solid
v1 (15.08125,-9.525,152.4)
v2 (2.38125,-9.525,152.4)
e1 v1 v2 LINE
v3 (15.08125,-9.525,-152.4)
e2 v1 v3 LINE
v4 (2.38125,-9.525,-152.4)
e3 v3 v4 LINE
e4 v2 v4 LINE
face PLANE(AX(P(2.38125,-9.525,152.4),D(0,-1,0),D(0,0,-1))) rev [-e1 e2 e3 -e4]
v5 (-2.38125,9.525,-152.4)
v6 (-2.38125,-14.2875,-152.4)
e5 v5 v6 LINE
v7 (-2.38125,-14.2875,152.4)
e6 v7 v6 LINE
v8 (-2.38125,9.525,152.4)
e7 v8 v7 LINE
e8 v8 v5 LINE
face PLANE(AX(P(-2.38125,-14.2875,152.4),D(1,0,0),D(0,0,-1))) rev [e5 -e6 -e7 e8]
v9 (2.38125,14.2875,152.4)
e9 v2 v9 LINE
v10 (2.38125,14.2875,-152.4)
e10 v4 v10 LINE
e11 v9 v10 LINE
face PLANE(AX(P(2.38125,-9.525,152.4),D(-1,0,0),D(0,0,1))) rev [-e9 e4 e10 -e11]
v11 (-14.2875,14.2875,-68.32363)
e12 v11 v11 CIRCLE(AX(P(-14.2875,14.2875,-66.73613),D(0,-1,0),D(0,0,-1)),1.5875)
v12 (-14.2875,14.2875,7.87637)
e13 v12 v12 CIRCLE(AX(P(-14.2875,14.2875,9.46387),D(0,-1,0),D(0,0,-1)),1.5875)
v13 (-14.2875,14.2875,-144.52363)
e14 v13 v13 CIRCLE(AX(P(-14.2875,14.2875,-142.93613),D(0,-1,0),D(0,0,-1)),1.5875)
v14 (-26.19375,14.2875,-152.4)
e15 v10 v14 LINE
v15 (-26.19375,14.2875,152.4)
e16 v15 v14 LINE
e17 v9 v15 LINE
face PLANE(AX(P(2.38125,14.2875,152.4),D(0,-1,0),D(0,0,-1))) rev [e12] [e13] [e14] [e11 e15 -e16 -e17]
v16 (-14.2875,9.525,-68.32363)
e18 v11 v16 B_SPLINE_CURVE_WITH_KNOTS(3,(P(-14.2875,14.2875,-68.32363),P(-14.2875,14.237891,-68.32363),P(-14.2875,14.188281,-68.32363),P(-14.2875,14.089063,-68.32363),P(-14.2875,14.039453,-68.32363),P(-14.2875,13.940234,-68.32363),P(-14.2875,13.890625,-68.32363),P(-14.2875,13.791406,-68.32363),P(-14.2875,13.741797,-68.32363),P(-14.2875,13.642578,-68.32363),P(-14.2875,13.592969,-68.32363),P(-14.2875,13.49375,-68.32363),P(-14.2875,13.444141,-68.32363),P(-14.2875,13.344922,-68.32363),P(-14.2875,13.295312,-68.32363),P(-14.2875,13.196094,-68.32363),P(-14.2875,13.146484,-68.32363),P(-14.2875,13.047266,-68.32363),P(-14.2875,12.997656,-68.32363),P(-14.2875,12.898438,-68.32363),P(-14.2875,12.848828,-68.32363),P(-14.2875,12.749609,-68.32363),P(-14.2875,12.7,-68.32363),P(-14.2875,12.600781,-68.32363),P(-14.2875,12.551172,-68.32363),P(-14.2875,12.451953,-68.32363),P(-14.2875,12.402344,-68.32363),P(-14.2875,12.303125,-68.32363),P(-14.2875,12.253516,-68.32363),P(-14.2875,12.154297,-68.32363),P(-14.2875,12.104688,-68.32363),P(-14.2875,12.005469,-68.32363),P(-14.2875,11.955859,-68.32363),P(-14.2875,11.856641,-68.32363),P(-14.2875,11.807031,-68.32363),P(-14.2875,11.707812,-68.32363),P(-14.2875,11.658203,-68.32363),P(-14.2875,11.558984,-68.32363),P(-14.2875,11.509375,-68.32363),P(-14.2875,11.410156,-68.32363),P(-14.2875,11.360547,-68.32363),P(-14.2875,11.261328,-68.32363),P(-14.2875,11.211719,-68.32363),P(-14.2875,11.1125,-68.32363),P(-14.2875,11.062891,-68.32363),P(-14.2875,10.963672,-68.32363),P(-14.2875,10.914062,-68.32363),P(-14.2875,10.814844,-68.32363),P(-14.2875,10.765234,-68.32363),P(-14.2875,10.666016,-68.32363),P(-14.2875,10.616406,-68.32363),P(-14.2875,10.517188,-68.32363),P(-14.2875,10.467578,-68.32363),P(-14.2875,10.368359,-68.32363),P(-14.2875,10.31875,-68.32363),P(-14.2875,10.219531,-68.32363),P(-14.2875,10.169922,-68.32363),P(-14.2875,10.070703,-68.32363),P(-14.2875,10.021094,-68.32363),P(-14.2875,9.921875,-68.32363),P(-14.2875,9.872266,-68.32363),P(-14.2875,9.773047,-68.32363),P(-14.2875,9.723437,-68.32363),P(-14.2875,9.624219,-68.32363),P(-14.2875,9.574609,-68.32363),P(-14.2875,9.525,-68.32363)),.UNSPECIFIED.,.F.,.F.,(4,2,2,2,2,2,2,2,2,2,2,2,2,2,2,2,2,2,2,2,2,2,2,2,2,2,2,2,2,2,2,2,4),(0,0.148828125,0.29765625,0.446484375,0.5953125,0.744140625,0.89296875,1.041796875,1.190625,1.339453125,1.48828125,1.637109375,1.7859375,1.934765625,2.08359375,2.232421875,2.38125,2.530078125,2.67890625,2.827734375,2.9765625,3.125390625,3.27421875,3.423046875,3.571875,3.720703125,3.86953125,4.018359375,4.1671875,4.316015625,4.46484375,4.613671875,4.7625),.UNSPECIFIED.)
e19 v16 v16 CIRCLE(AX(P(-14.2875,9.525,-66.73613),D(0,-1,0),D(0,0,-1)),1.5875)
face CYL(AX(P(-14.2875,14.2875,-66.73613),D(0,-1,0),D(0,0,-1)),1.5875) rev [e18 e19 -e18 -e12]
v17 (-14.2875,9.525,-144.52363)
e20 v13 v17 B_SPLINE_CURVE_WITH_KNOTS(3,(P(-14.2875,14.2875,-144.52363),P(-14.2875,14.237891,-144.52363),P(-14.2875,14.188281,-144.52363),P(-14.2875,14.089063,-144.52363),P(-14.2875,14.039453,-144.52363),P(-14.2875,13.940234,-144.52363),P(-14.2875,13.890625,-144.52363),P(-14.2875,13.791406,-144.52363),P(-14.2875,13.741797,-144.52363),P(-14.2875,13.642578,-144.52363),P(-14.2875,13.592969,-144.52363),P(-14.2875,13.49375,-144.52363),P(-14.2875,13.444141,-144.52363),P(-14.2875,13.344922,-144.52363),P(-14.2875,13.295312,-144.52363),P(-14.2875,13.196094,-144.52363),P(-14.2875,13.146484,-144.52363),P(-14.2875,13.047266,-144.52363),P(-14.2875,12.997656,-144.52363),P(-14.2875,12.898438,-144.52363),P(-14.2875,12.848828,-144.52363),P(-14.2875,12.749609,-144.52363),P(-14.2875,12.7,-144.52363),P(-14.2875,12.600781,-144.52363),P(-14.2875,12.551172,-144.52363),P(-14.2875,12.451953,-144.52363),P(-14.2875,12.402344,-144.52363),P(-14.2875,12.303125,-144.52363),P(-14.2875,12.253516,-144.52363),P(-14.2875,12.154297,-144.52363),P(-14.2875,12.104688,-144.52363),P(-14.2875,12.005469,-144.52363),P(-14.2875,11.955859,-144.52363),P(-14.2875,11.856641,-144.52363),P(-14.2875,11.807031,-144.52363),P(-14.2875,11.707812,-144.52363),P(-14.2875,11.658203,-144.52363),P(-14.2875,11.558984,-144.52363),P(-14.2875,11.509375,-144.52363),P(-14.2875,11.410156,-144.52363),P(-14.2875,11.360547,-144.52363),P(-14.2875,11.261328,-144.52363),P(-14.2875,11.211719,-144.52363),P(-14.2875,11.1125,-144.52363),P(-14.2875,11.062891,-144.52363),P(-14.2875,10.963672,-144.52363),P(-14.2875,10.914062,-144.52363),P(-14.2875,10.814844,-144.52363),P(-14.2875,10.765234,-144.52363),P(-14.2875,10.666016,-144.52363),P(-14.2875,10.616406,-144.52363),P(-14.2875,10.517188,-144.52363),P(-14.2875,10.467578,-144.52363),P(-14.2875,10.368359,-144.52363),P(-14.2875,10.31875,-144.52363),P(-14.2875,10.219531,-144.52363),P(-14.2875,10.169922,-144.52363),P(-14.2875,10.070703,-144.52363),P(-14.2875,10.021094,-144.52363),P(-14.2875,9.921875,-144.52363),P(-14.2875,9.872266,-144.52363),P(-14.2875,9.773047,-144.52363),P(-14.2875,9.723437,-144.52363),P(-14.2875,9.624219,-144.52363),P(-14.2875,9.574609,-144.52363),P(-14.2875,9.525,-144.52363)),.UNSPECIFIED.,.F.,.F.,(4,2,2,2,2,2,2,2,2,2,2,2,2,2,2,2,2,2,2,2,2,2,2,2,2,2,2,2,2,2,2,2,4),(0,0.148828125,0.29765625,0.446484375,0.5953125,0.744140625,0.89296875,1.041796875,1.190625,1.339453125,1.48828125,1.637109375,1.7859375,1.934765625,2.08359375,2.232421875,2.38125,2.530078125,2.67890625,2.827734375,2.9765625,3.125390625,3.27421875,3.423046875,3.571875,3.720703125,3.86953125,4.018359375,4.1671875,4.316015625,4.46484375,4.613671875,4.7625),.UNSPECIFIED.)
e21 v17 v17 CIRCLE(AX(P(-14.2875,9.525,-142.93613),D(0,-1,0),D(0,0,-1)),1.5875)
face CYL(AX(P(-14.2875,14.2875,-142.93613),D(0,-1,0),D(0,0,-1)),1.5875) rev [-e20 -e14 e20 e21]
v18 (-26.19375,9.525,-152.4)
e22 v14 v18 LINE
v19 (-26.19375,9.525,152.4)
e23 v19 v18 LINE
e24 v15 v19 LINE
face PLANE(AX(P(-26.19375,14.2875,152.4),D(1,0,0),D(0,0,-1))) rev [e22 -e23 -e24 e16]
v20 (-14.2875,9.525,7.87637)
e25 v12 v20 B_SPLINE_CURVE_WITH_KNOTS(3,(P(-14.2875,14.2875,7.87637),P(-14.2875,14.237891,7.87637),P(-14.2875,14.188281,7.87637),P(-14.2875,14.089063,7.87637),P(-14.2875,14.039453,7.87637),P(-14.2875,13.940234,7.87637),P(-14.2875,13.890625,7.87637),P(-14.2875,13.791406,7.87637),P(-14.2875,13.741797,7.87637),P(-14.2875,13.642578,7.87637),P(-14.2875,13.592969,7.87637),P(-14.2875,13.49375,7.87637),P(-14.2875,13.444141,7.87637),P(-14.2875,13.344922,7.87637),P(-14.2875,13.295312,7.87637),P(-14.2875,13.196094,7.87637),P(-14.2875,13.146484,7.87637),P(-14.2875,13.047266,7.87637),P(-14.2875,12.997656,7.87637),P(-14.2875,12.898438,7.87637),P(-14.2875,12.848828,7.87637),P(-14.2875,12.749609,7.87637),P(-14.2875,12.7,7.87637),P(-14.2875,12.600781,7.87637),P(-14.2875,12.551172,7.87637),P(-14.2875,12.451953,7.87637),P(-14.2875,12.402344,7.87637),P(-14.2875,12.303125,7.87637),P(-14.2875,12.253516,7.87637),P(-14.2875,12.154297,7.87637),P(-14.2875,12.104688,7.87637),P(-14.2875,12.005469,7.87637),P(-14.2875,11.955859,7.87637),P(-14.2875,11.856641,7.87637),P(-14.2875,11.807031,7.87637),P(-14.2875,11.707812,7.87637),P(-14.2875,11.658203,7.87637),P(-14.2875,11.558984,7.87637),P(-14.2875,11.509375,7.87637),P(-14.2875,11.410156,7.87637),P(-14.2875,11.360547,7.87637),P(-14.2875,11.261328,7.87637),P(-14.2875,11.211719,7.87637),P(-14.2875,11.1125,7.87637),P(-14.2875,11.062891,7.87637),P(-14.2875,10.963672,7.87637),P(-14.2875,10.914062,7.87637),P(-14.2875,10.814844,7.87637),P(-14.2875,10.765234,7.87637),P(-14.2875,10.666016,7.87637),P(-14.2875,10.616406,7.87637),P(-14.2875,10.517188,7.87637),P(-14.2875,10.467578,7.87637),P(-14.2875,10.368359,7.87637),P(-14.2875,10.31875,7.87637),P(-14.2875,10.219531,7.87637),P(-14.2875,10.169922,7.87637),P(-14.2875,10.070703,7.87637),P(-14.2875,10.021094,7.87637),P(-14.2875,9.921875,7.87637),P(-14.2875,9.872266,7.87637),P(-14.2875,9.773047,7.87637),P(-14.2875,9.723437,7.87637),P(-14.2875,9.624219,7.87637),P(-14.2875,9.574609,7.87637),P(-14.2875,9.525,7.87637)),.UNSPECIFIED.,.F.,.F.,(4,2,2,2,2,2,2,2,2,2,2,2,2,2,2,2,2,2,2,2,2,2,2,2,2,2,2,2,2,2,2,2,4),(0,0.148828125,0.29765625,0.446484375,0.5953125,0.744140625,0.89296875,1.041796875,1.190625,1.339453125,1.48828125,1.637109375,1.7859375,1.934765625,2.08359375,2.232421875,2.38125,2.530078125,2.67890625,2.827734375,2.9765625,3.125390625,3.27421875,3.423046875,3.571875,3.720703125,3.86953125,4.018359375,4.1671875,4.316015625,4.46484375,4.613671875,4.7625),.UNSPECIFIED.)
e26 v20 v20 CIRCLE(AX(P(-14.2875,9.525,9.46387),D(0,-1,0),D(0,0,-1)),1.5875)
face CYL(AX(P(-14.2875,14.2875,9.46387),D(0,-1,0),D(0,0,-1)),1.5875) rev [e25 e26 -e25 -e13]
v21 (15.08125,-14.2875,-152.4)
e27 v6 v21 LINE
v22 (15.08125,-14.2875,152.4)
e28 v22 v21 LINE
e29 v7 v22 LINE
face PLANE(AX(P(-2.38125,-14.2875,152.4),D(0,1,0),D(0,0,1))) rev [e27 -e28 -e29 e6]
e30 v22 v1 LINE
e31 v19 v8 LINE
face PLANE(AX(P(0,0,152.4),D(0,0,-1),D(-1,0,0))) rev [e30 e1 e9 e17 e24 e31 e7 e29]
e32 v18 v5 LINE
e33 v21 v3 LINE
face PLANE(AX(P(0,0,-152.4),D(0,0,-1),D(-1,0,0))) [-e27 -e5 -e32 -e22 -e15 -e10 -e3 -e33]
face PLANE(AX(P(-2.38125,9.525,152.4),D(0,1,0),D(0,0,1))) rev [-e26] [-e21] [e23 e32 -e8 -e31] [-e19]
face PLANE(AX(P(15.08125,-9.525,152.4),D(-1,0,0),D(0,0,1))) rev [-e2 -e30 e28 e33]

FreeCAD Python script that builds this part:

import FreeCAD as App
import Part
import Sketcher

V = App.Vector
Q = App.Units.Quantity


def add_polygon(sketch, points):
    """Adds a closed chain of lines whose ends are joined by coincident constraints."""
    first, n = sketch.GeometryCount, len(points)
    for a, b in zip(points, points[1:] + points[:1]):
        sketch.addGeometry(Part.LineSegment(App.Vector(*a, 0), App.Vector(*b, 0)), False)
    for i in range(n):
        sketch.addConstraint(Sketcher.Constraint("Coincident", first + i, 2, first + (i + 1) % n, 1))

doc = App.newDocument("Part")
body = doc.addObject("PartDesign::Body", "Body")

sketch1 = body.newObject("Sketcher::SketchObject", "Sketch")
sketch1.AttachmentSupport = (doc.getObject("XY_Plane"), [""])
sketch1.MapMode = "FlatFace"
add_polygon(sketch1, [(15.08125, -14.2875), (15.08125, -9.525), (2.38125, -9.525), (2.38125, 14.2875), (-26.19375, 14.2875), (-26.19375, 9.525), (-2.38125, 9.525), (-2.38125, -14.2875)])
sketch1.addConstraint(Sketcher.Constraint("Vertical", 0))
sketch1.addConstraint(Sketcher.Constraint("Horizontal", 1))
sketch1.addConstraint(Sketcher.Constraint("Vertical", 2))
sketch1.addConstraint(Sketcher.Constraint("Horizontal", 3))
sketch1.addConstraint(Sketcher.Constraint("Vertical", 4))
sketch1.addConstraint(Sketcher.Constraint("Horizontal", 5))
sketch1.addConstraint(Sketcher.Constraint("Vertical", 6))
sketch1.addConstraint(Sketcher.Constraint("Horizontal", 7))
sketch1.addConstraint(Sketcher.Constraint("Symmetric", 1, 2, 5, 2, -1, 1))
sketch1.addConstraint(Sketcher.Constraint("Equal", 5, 2))
sketch1.addConstraint(Sketcher.Constraint("Equal", 0, 4))
sketch1.addConstraint(Sketcher.Constraint("DistanceX", 1, 2, 1, 1, Q("0.5 in")))
sketch1.addConstraint(Sketcher.Constraint("DistanceX", 3, 2, 3, 1, Q("1.125 in")))
sketch1.addConstraint(Sketcher.Constraint("DistanceX", 5, 1, 5, 2, Q("0.9375 in")))
sketch1.addConstraint(Sketcher.Constraint("DistanceY", 0, 1, 0, 2, Q("0.1875 in")))
pad1 = body.newObject("PartDesign::Pad", "Pad")
pad1.Profile = sketch1
pad1.Type = "TwoLengths"
pad1.Length = Q("6 in")
pad1.Length2 = Q("6 in")

sketch2 = body.newObject("Sketcher::SketchObject", "Sketch001")
sketch2.AttachmentSupport = (doc.getObject("XZ_Plane"), [""])
sketch2.MapMode = "FlatFace"
sketch2.AttachmentOffset = App.Placement(V(0, 0, -0.375 * 25.4), App.Rotation())
sketch2.addGeometry(Part.Circle(V(-14.2875, 9.46387, 0), V(0, 0, 1), 1.5875), False)
sketch2.addGeometry(Part.Circle(V(-14.2875, -66.73613, 0), V(0, 0, 1), 1.5875), False)
sketch2.addGeometry(Part.Circle(V(-14.2875, -142.93613, 0), V(0, 0, 1), 1.5875), False)
sketch2.addConstraint(Sketcher.Constraint("Equal", 0, 1))
sketch2.addConstraint(Sketcher.Constraint("Equal", 1, 2))
sketch2.addConstraint(Sketcher.Constraint("Vertical", 0, 3, 1, 3))
sketch2.addConstraint(Sketcher.Constraint("Vertical", 1, 3, 2, 3))
sketch2.addConstraint(Sketcher.Constraint("Diameter", 0, Q("0.125 in")))
sketch2.addConstraint(Sketcher.Constraint("DistanceY", 1, 3, 0, 3, Q("3 in")))
sketch2.addConstraint(Sketcher.Constraint("DistanceY", 2, 3, 1, 3, Q("3 in")))
sketch2.addConstraint(Sketcher.Constraint("DistanceX", 0, 3, -1, 1, Q("0.5625 in")))
sketch2.addConstraint(Sketcher.Constraint("DistanceY", -1, 1, 0, 3, Q("9.46387 mm")))
pocket1 = body.newObject("PartDesign::Pocket", "Pocket")
pocket1.Profile = sketch2
pocket1.Length = Q("0.1875 in")

doc.recompute()
